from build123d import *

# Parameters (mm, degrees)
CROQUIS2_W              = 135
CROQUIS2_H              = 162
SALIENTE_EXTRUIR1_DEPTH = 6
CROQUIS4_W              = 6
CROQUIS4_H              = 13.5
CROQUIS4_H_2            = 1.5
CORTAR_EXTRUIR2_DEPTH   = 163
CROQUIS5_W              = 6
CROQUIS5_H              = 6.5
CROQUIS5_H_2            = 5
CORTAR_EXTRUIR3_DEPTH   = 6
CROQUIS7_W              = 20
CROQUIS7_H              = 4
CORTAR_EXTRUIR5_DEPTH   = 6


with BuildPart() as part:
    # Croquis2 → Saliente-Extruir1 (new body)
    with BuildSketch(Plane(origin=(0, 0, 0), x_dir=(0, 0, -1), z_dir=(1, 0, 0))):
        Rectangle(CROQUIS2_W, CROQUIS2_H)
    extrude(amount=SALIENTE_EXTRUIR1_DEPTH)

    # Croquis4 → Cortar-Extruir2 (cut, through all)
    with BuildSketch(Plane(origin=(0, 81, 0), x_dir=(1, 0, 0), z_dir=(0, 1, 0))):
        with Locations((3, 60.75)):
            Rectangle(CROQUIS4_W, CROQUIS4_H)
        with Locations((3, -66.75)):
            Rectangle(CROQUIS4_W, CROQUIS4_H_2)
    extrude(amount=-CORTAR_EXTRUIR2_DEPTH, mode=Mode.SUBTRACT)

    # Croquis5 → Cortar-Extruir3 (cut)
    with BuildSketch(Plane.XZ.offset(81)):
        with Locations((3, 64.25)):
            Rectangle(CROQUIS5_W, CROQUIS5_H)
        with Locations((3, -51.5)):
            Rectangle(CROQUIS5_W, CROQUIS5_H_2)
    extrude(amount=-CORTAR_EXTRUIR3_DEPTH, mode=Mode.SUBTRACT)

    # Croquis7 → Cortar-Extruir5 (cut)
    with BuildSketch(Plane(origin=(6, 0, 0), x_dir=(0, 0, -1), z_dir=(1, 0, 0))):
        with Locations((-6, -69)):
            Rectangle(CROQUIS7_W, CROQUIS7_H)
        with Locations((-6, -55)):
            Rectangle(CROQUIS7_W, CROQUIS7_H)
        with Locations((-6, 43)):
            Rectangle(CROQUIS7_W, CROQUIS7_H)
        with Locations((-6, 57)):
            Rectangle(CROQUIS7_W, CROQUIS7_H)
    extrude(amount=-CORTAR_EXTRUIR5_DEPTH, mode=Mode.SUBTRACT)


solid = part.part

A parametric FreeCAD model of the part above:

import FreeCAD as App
import Part
import Sketcher
from FreeCAD import Vector

doc = App.newDocument("Part")
params = doc.addObject("Spreadsheet::Sheet", "Params")
for row, (alias, value) in enumerate([
    ("sketch1_width", "162 mm"),
    ("sketch1_height", "135 mm"),
    ("pad1_length", "6 mm"),
    ("sketch2_width", "6 mm"),
    ("sketch2_height", "13.5 mm"),
    ("sketch2_height2", "1.5 mm"),
    ("sketch3_width", "6 mm"),
    ("sketch3_height", "5 mm"),
    ("sketch3_height2", "6.5 mm"),
    ("pocket2_length", "6 mm"),
    ("sketch4_width", "4 mm"),
    ("sketch4_height", "20 mm"),
    ("pocket3_length", "6 mm"),
], start=1):
    params.set(f"A{row}", alias)
    params.set(f"B{row}", "=" + value)
    params.setAlias(f"B{row}", alias)

body = doc.addObject("PartDesign::Body", "Body")

# Sketch on YZ plane
sketch1 = body.newObject("Sketcher::SketchObject", "Sketch")
sketch1.AttachmentSupport = (doc.getObject("YZ_Plane"), [""])
sketch1.MapMode = "FlatFace"
sketch1.addGeometry([
    Part.LineSegment(Vector(81, 68, 0), Vector(-81, 68, 0)),
    Part.LineSegment(Vector(-81, 68, 0), Vector(-81, -68, 0)),
    Part.LineSegment(Vector(-81, -68, 0), Vector(81, -68, 0)),
    Part.LineSegment(Vector(81, -68, 0), Vector(81, 68, 0)),
], False)
sketch1.addConstraint([
    Sketcher.Constraint("Coincident", 0, 2, 1, 1),
    Sketcher.Constraint("Coincident", 1, 2, 2, 1),
    Sketcher.Constraint("Coincident", 2, 2, 3, 1),
    Sketcher.Constraint("Coincident", 3, 2, 0, 1),
    Sketcher.Constraint("Horizontal", 0),
    Sketcher.Constraint("Vertical", 1),
    Sketcher.Constraint("Horizontal", 2),
    Sketcher.Constraint("Vertical", 3),
    Sketcher.Constraint("Symmetric", 0, 2, 2, 2, -1, 1),
    Sketcher.Constraint("DistanceX", 0, 2, 0, 1, 162.0),
    Sketcher.Constraint("DistanceY", 1, 2, 1, 1, 135.0),
])
sketch1.setExpression("Constraints[9]", "Params.sketch1_width")
sketch1.setExpression("Constraints[10]", "Params.sketch1_height")
pad1 = body.newObject("PartDesign::Pad", "Pad")
pad1.Profile = sketch1
pad1.setExpression("Length", "Params.pad1_length")

# Sketch on XZ plane
sketch2 = body.newObject("Sketcher::SketchObject", "Sketch001")
sketch2.AttachmentSupport = (doc.getObject("XZ_Plane"), [""])
sketch2.MapMode = "FlatFace"
sketch2.AttachmentOffset = App.Placement(Vector(0, 0, -81), App.Rotation())
sketch2.addGeometry([
    Part.LineSegment(Vector(0, -67.5, 0), Vector(0, -54, 0)),  # 0
    Part.LineSegment(Vector(0, -54, 0), Vector(6, -54, 0)),  # 1
    Part.LineSegment(Vector(6, -54, 0), Vector(6, -67.5, 0)),  # 2
    Part.LineSegment(Vector(6, -67.5, 0), Vector(0, -67.5, 0)),  # 3
    Part.LineSegment(Vector(0, 66, 0), Vector(0, 67.5, 0)),  # 4
    Part.LineSegment(Vector(0, 67.5, 0), Vector(6, 67.5, 0)),  # 5
    Part.LineSegment(Vector(6, 67.5, 0), Vector(6, 66, 0)),  # 6
    Part.LineSegment(Vector(6, 66, 0), Vector(0, 66, 0)),  # 7
], False)
sketch2.addConstraint([
    Sketcher.Constraint("Coincident", 0, 2, 1, 1),
    Sketcher.Constraint("Coincident", 1, 2, 2, 1),
    Sketcher.Constraint("Coincident", 2, 2, 3, 1),
    Sketcher.Constraint("Coincident", 3, 2, 0, 1),
    Sketcher.Constraint("Coincident", 4, 2, 5, 1),
    Sketcher.Constraint("Coincident", 5, 2, 6, 1),
    Sketcher.Constraint("Coincident", 6, 2, 7, 1),
    Sketcher.Constraint("Coincident", 7, 2, 4, 1),
    Sketcher.Constraint("Vertical", 0),
    Sketcher.Constraint("Horizontal", 1),
    Sketcher.Constraint("Vertical", 2),
    Sketcher.Constraint("Horizontal", 3),
    Sketcher.Constraint("Vertical", 4),
    Sketcher.Constraint("Horizontal", 5),
    Sketcher.Constraint("Vertical", 6),
    Sketcher.Constraint("Horizontal", 7),
    Sketcher.Constraint("Symmetric", 3, 2, 4, 2, -1, 1),
    Sketcher.Constraint("PointOnObject", 0, 2, -2),
    Sketcher.Constraint("Vertical", 2, 2, 5, 2),
    Sketcher.Constraint("DistanceX", 1, 1, 1, 2, 6.0),
    Sketcher.Constraint("DistanceY", 0, 1, 0, 2, 13.5),
    Sketcher.Constraint("DistanceY", 4, 1, 4, 2, 1.5),
    Sketcher.Constraint("DistanceY", 0, 2, -1, 1, 54.0),
])
sketch2.setExpression("Constraints[19]", "Params.sketch2_width")
sketch2.setExpression("Constraints[20]", "Params.sketch2_height")
sketch2.setExpression("Constraints[21]", "Params.sketch2_height2")
pocket1 = body.newObject("PartDesign::Pocket", "Pocket")
pocket1.Profile = sketch2
pocket1.Type = "ThroughAll"
pocket1.Reversed = True

# Sketch on XZ plane
sketch3 = body.newObject("Sketcher::SketchObject", "Sketch002")
sketch3.AttachmentSupport = (doc.getObject("XZ_Plane"), [""])
sketch3.MapMode = "FlatFace"
sketch3.AttachmentOffset = App.Placement(Vector(0, 0, 81), App.Rotation())
sketch3.addGeometry([
    Part.LineSegment(Vector(0, 68, 0), Vector(0, 61, 0)),  # 0
    Part.LineSegment(Vector(0, 61, 0), Vector(6, 61, 0)),  # 1
    Part.LineSegment(Vector(6, 61, 0), Vector(6, 68, 0)),  # 2
    Part.LineSegment(Vector(6, 68, 0), Vector(0, 68, 0)),  # 3
    Part.LineSegment(Vector(0, -49, 0), Vector(0, -54, 0)),  # 4
    Part.LineSegment(Vector(0, -54, 0), Vector(6, -54, 0)),  # 5
    Part.LineSegment(Vector(6, -54, 0), Vector(6, -49, 0)),  # 6
    Part.LineSegment(Vector(6, -49, 0), Vector(0, -49, 0)),  # 7
], False)
sketch3.addConstraint([
    Sketcher.Constraint("Coincident", 0, 2, 1, 1),
    Sketcher.Constraint("Coincident", 1, 2, 2, 1),
    Sketcher.Constraint("Coincident", 2, 2, 3, 1),
    Sketcher.Constraint("Coincident", 3, 2, 0, 1),
    Sketcher.Constraint("Coincident", 4, 2, 5, 1),
    Sketcher.Constraint("Coincident", 5, 2, 6, 1),
    Sketcher.Constraint("Coincident", 6, 2, 7, 1),
    Sketcher.Constraint("Coincident", 7, 2, 4, 1),
    Sketcher.Constraint("Vertical", 0),
    Sketcher.Constraint("Horizontal", 1),
    Sketcher.Constraint("Vertical", 2),
    Sketcher.Constraint("Horizontal", 3),
    Sketcher.Constraint("Vertical", 4),
    Sketcher.Constraint("Horizontal", 5),
    Sketcher.Constraint("Vertical", 6),
    Sketcher.Constraint("Horizontal", 7),
    Sketcher.Constraint("PointOnObject", 0, 2, -2),
    Sketcher.Constraint("PointOnObject", 4, 2, -2),
    Sketcher.Constraint("Vertical", 2, 2, 5, 2),
    Sketcher.Constraint("DistanceX", 1, 1, 1, 2, 6.0),
    Sketcher.Constraint("DistanceY", 4, 2, 4, 1, 5.0),
    Sketcher.Constraint("DistanceY", 0, 2, 0, 1, 6.5),
    Sketcher.Constraint("DistanceY", -1, 1, 0, 2, 61.0),
    Sketcher.Constraint("DistanceY", 4, 2, -1, 1, 54.0),
])
sketch3.setExpression("Constraints[19]", "Params.sketch3_width")
sketch3.setExpression("Constraints[20]", "Params.sketch3_height")
sketch3.setExpression("Constraints[21]", "Params.sketch3_height2")
pocket2 = body.newObject("PartDesign::Pocket", "Pocket001")
pocket2.Profile = sketch3
pocket2.setExpression("Length", "Params.pocket2_length")

# Sketch on YZ plane
sketch4 = body.newObject("Sketcher::SketchObject", "Sketch003")
sketch4.AttachmentSupport = (doc.getObject("YZ_Plane"), [""])
sketch4.MapMode = "FlatFace"
sketch4.AttachmentOffset = App.Placement(Vector(0, 0, 6), App.Rotation())
sketch4.addGeometry([
    Part.LineSegment(Vector(-67, 16, 0), Vector(-71, 16, 0)),  # 0
    Part.LineSegment(Vector(-71, 16, 0), Vector(-71, -4, 0)),  # 1
    Part.LineSegment(Vector(-71, -4, 0), Vector(-67, -4, 0)),  # 2
    Part.LineSegment(Vector(-67, -4, 0), Vector(-67, 16, 0)),  # 3
    Part.LineSegment(Vector(-53, 16, 0), Vector(-57, 16, 0)),  # 4
    Part.LineSegment(Vector(-57, 16, 0), Vector(-57, -4, 0)),  # 5
    Part.LineSegment(Vector(-57, -4, 0), Vector(-53, -4, 0)),  # 6
    Part.LineSegment(Vector(-53, -4, 0), Vector(-53, 16, 0)),  # 7
    Part.LineSegment(Vector(45, 16, 0), Vector(41, 16, 0)),  # 8
    Part.LineSegment(Vector(41, 16, 0), Vector(41, -4, 0)),  # 9
    Part.LineSegment(Vector(41, -4, 0), Vector(45, -4, 0)),  # 10
    Part.LineSegment(Vector(45, -4, 0), Vector(45, 16, 0)),  # 11
    Part.LineSegment(Vector(59, 16, 0), Vector(55, 16, 0)),  # 12
    Part.LineSegment(Vector(55, 16, 0), Vector(55, -4, 0)),  # 13
    Part.LineSegment(Vector(55, -4, 0), Vector(59, -4, 0)),  # 14
    Part.LineSegment(Vector(59, -4, 0), Vector(59, 16, 0)),  # 15
], False)
sketch4.addConstraint([
    Sketcher.Constraint("Coincident", 0, 2, 1, 1),
    Sketcher.Constraint("Coincident", 1, 2, 2, 1),
    Sketcher.Constraint("Coincident", 2, 2, 3, 1),
    Sketcher.Constraint("Coincident", 3, 2, 0, 1),
    Sketcher.Constraint("Coincident", 4, 2, 5, 1),
    Sketcher.Constraint("Coincident", 5, 2, 6, 1),
    Sketcher.Constraint("Coincident", 6, 2, 7, 1),
    Sketcher.Constraint("Coincident", 7, 2, 4, 1),
    Sketcher.Constraint("Coincident", 8, 2, 9, 1),
    Sketcher.Constraint("Coincident", 9, 2, 10, 1),
    Sketcher.Constraint("Coincident", 10, 2, 11, 1),
    Sketcher.Constraint("Coincident", 11, 2, 8, 1),
    Sketcher.Constraint("Coincident", 12, 2, 13, 1),
    Sketcher.Constraint("Coincident", 13, 2, 14, 1),
    Sketcher.Constraint("Coincident", 14, 2, 15, 1),
    Sketcher.Constraint("Coincident", 15, 2, 12, 1),
    Sketcher.Constraint("Horizontal", 0),
    Sketcher.Constraint("Vertical", 1),
    Sketcher.Constraint("Horizontal", 2),
    Sketcher.Constraint("Vertical", 3),
    Sketcher.Constraint("Horizontal", 4),
    Sketcher.Constraint("Vertical", 5),
    Sketcher.Constraint("Horizontal", 6),
    Sketcher.Constraint("Vertical", 7),
    Sketcher.Constraint("Horizontal", 8),
    Sketcher.Constraint("Vertical", 9),
    Sketcher.Constraint("Horizontal", 10),
    Sketcher.Constraint("Vertical", 11),
    Sketcher.Constraint("Horizontal", 12),
    Sketcher.Constraint("Vertical", 13),
    Sketcher.Constraint("Horizontal", 14),
    Sketcher.Constraint("Vertical", 15),
    Sketcher.Constraint("Horizontal", 3, 2, 4, 2),
    Sketcher.Constraint("Horizontal", 2, 2, 5, 2),
    Sketcher.Constraint("Horizontal", 7, 2, 8, 2),
    Sketcher.Constraint("Horizontal", 6, 2, 9, 2),
    Sketcher.Constraint("Horizontal", 11, 2, 12, 2),
    Sketcher.Constraint("Horizontal", 10, 2, 13, 2),
    Sketcher.Constraint("Equal", 2, 4),
    Sketcher.Constraint("Equal", 6, 8),
    Sketcher.Constraint("Equal", 10, 12),
    Sketcher.Constraint("DistanceX", 0, 2, 0, 1, 4.0),
    Sketcher.Constraint("DistanceY", 1, 2, 1, 1, 20.0),
    Sketcher.Constraint("DistanceX", 0, 2, -1, 1, 71.0),
    Sketcher.Constraint("DistanceY", -1, 1, 0, 2, 16.0),
    Sketcher.Constraint("DistanceX", 4, 2, -1, 1, 57.0),
    Sketcher.Constraint("DistanceX", -1, 1, 8, 2, 41.0),
    Sketcher.Constraint("DistanceX", -1, 1, 12, 2, 55.0),
])
sketch4.setExpression("Constraints[41]", "Params.sketch4_width")
sketch4.setExpression("Constraints[42]", "Params.sketch4_height")
pocket3 = body.newObject("PartDesign::Pocket", "Pocket002")
pocket3.Profile = sketch4
pocket3.setExpression("Length", "Params.pocket3_length")

doc.recompute()
